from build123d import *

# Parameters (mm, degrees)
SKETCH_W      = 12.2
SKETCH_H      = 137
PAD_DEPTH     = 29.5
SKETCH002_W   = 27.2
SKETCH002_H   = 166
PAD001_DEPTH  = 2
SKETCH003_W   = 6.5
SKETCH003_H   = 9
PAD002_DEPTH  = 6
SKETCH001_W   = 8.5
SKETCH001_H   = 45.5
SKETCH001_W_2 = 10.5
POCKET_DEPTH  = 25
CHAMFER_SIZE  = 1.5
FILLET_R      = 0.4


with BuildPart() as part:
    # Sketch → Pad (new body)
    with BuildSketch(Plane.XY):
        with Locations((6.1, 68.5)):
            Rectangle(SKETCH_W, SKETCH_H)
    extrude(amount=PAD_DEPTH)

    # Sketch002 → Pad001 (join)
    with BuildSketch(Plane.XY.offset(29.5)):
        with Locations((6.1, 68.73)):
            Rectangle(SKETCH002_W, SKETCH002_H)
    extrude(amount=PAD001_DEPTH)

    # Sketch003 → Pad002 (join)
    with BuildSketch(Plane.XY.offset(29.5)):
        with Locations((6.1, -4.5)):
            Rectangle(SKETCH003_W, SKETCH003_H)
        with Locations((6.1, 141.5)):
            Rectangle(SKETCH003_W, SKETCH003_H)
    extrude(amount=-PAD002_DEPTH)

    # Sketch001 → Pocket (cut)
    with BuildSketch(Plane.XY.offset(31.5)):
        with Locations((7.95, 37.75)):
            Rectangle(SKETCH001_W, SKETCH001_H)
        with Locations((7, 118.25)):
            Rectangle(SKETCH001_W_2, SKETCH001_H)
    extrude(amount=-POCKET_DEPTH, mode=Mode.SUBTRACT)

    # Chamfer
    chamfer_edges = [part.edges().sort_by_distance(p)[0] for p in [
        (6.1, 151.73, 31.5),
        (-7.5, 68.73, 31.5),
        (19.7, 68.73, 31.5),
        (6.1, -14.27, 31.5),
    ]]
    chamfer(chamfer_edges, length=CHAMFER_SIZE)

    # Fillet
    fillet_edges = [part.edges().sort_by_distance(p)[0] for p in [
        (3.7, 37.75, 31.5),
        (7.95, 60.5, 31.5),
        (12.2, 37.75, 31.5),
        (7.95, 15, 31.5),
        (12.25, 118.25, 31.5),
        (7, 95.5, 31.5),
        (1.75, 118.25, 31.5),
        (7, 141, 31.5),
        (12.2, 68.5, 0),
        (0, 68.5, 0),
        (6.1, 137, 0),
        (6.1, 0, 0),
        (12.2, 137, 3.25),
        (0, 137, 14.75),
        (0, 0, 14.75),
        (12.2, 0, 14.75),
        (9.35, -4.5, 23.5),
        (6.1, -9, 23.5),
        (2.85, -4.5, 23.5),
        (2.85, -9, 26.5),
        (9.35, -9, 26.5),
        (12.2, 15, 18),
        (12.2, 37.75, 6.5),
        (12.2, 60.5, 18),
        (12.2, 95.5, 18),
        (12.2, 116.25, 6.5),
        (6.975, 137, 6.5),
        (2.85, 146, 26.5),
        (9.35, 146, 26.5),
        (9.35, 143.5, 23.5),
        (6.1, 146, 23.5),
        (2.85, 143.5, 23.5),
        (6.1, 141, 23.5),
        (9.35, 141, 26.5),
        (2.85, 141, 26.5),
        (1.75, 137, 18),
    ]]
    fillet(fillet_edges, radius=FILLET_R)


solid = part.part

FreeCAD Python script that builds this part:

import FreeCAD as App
import Part
import Sketcher

V = App.Vector
Q = App.Units.Quantity


def edges_at(feature, points):
    """Names of the edges that pass closest to the given points."""
    edges = feature.Shape.Edges
    near = lambda p: min(range(len(edges)), key=lambda i: edges[i].distToShape(Part.Vertex(*p))[0])
    return sorted({f"Edge{near(p) + 1}" for p in points})


def add_polygon(sketch, points):
    """Adds a closed chain of lines whose ends are joined by coincident constraints."""
    first, n = sketch.GeometryCount, len(points)
    for a, b in zip(points, points[1:] + points[:1]):
        sketch.addGeometry(Part.LineSegment(App.Vector(*a, 0), App.Vector(*b, 0)), False)
    for i in range(n):
        sketch.addConstraint(Sketcher.Constraint("Coincident", first + i, 2, first + (i + 1) % n, 1))

doc = App.newDocument("Part")
body = doc.addObject("PartDesign::Body", "Body")

sketch1 = body.newObject("Sketcher::SketchObject", "Sketch")
sketch1.AttachmentSupport = (doc.getObject("XY_Plane"), [""])
sketch1.MapMode = "FlatFace"
add_polygon(sketch1, [(0, 137), (0, 0), (12, 0), (12, 137)])
sketch1.addConstraint(Sketcher.Constraint("Vertical", 0))
sketch1.addConstraint(Sketcher.Constraint("Horizontal", 1))
sketch1.addConstraint(Sketcher.Constraint("Vertical", 2))
sketch1.addConstraint(Sketcher.Constraint("Horizontal", 3))
sketch1.addConstraint(Sketcher.Constraint("Coincident", 0, 2, -1, 1))
sketch1.addConstraint(Sketcher.Constraint("DistanceY", 0, 2, 0, 1, Q("137 mm")))
sketch1.addConstraint(Sketcher.Constraint("DistanceX", 1, 1, 1, 2, Q("12.2 mm")))
pad1 = body.newObject("PartDesign::Pad", "Pad")
pad1.Profile = sketch1
pad1.Length = 29.5

sketch2 = body.newObject("Sketcher::SketchObject", "Sketch001")
sketch2.AttachmentSupport = (doc.getObject("XY_Plane"), [""])
sketch2.MapMode = "FlatFace"
sketch2.AttachmentOffset = App.Placement(V(0, 0, 29.5), App.Rotation())
add_polygon(sketch2, [(-8, 152), (-8, -14), (20, -14), (20, 152)])
sketch2.addConstraint(Sketcher.Constraint("Vertical", 0))
sketch2.addConstraint(Sketcher.Constraint("Horizontal", 1))
sketch2.addConstraint(Sketcher.Constraint("Vertical", 2))
sketch2.addConstraint(Sketcher.Constraint("Horizontal", 3))
sketch2.addConstraint(Sketcher.Constraint("DistanceY", 0, 2, 0, 1, Q("166 mm")))
sketch2.addConstraint(Sketcher.Constraint("DistanceX", 1, 1, 1, 2, Q("27.2 mm")))
sketch2.addConstraint(Sketcher.Constraint("DistanceX", 0, 2, -1, 1, Q("7.5 mm")))
sketch2.addConstraint(Sketcher.Constraint("DistanceY", 0, 2, -1, 1, Q("14.27 mm")))
pad2 = body.newObject("PartDesign::Pad", "Pad001")
pad2.Profile = sketch2
pad2.Length = 2

sketch3 = body.newObject("Sketcher::SketchObject", "Sketch002")
sketch3.AttachmentSupport = (doc.getObject("XY_Plane"), [""])
sketch3.MapMode = "FlatFace"
sketch3.AttachmentOffset = App.Placement(V(0, 0, 29.5), App.Rotation())
add_polygon(sketch3, [(3, 0), (3, -9), (9, -9), (9, 0)])
add_polygon(sketch3, [(3, 146), (3, 137), (9, 137), (9, 146)])
sketch3.addConstraint(Sketcher.Constraint("Vertical", 0))
sketch3.addConstraint(Sketcher.Constraint("Horizontal", 1))
sketch3.addConstraint(Sketcher.Constraint("Vertical", 2))
sketch3.addConstraint(Sketcher.Constraint("Horizontal", 3))
sketch3.addConstraint(Sketcher.Constraint("Vertical", 4))
sketch3.addConstraint(Sketcher.Constraint("Horizontal", 5))
sketch3.addConstraint(Sketcher.Constraint("Vertical", 6))
sketch3.addConstraint(Sketcher.Constraint("Horizontal", 7))
sketch3.addConstraint(Sketcher.Constraint("PointOnObject", 2, 2, -1))
sketch3.addConstraint(Sketcher.Constraint("Vertical", 3, 2, 4, 2))
sketch3.addConstraint(Sketcher.Constraint("Vertical", 2, 2, 5, 2))
sketch3.addConstraint(Sketcher.Constraint("Equal", 2, 4))
sketch3.addConstraint(Sketcher.Constraint("DistanceY", 0, 2, 0, 1, Q("9 mm")))
sketch3.addConstraint(Sketcher.Constraint("DistanceX", 1, 1, 1, 2, Q("6.5 mm")))
sketch3.addConstraint(Sketcher.Constraint("DistanceY", -1, 1, 4, 2, Q("137 mm")))
sketch3.addConstraint(Sketcher.Constraint("DistanceX", -1, 1, 0, 2, Q("2.85 mm")))
pad3 = body.newObject("PartDesign::Pad", "Pad002")
pad3.Profile = sketch3
pad3.Length = 6
pad3.Reversed = True

sketch4 = body.newObject("Sketcher::SketchObject", "Sketch003")
sketch4.AttachmentSupport = (doc.getObject("XY_Plane"), [""])
sketch4.MapMode = "FlatFace"
sketch4.AttachmentOffset = App.Placement(V(0, 0, 31.5), App.Rotation())
add_polygon(sketch4, [(4, 60), (4, 15), (12, 15), (12, 60)])
add_polygon(sketch4, [(2, 141), (2, 96), (12, 96), (12, 141)])
sketch4.addConstraint(Sketcher.Constraint("Vertical", 0))
sketch4.addConstraint(Sketcher.Constraint("Horizontal", 1))
sketch4.addConstraint(Sketcher.Constraint("Vertical", 2))
sketch4.addConstraint(Sketcher.Constraint("Horizontal", 3))
sketch4.addConstraint(Sketcher.Constraint("Vertical", 4))
sketch4.addConstraint(Sketcher.Constraint("Horizontal", 5))
sketch4.addConstraint(Sketcher.Constraint("Vertical", 6))
sketch4.addConstraint(Sketcher.Constraint("Horizontal", 7))
sketch4.addConstraint(Sketcher.Constraint("Equal", 2, 4))
sketch4.addConstraint(Sketcher.Constraint("DistanceX", 1, 1, 1, 2, Q("8.5 mm")))
sketch4.addConstraint(Sketcher.Constraint("DistanceX", 5, 1, 5, 2, Q("10.5 mm")))
sketch4.addConstraint(Sketcher.Constraint("DistanceY", 0, 2, 0, 1, Q("45.5 mm")))
sketch4.addConstraint(Sketcher.Constraint("DistanceY", -1, 1, 0, 2, Q("15 mm")))
sketch4.addConstraint(Sketcher.Constraint("DistanceY", -1, 1, 6, 2, Q("141 mm")))
sketch4.addConstraint(Sketcher.Constraint("DistanceX", -1, 1, 0, 2, Q("3.7 mm")))
sketch4.addConstraint(Sketcher.Constraint("DistanceX", -1, 1, 4, 2, Q("1.75 mm")))
pocket1 = body.newObject("PartDesign::Pocket", "Pocket")
pocket1.Profile = sketch4
pocket1.Length = 25
doc.recompute()

chamfer = body.newObject("PartDesign::Chamfer", "Chamfer")
chamfer.Base = (pocket1, edges_at(pocket1, [
    (6.1, 151.73, 31.5),
    (-7.5, 68.73, 31.5),
    (19.7, 68.73, 31.5),
    (6.1, -14.27, 31.5),
]))
chamfer.Size = 1.5
doc.recompute()

fillet = body.newObject("PartDesign::Fillet", "Fillet")
fillet.Base = (chamfer, edges_at(chamfer, [
    (3.7, 37.75, 31.5),
    (7.95, 60.5, 31.5),
    (12.2, 37.75, 31.5),
    (7.95, 15, 31.5),
    (12.25, 118.25, 31.5),
    (7, 95.5, 31.5),
    (1.75, 118.25, 31.5),
    (7, 141, 31.5),
    (12.2, 68.5, 0),
    (0, 68.5, 0),
    (6.1, 137, 0),
    (6.1, 0, 0),
    (12.2, 137, 3.25),
    (0, 137, 14.75),
    (0, 0, 14.75),
    (12.2, 0, 14.75),
    (9.35, -4.5, 23.5),
    (6.1, -9, 23.5),
    (2.85, -4.5, 23.5),
    (2.85, -9, 26.5),
    (9.35, -9, 26.5),
    (12.2, 15, 18),
    (12.2, 37.75, 6.5),
    (12.2, 60.5, 18),
    (12.2, 95.5, 18),
    (12.2, 116.25, 6.5),
    (6.975, 137, 6.5),
    (2.85, 146, 26.5),
    (9.35, 146, 26.5),
    (9.35, 143.5, 23.5),
    (6.1, 146, 23.5),
    (2.85, 143.5, 23.5),
    (6.1, 141, 23.5),
    (9.35, 141, 26.5),
    (2.85, 141, 26.5),
    (1.75, 137, 18),
]))
fillet.Radius = 0.4

doc.recompute()
